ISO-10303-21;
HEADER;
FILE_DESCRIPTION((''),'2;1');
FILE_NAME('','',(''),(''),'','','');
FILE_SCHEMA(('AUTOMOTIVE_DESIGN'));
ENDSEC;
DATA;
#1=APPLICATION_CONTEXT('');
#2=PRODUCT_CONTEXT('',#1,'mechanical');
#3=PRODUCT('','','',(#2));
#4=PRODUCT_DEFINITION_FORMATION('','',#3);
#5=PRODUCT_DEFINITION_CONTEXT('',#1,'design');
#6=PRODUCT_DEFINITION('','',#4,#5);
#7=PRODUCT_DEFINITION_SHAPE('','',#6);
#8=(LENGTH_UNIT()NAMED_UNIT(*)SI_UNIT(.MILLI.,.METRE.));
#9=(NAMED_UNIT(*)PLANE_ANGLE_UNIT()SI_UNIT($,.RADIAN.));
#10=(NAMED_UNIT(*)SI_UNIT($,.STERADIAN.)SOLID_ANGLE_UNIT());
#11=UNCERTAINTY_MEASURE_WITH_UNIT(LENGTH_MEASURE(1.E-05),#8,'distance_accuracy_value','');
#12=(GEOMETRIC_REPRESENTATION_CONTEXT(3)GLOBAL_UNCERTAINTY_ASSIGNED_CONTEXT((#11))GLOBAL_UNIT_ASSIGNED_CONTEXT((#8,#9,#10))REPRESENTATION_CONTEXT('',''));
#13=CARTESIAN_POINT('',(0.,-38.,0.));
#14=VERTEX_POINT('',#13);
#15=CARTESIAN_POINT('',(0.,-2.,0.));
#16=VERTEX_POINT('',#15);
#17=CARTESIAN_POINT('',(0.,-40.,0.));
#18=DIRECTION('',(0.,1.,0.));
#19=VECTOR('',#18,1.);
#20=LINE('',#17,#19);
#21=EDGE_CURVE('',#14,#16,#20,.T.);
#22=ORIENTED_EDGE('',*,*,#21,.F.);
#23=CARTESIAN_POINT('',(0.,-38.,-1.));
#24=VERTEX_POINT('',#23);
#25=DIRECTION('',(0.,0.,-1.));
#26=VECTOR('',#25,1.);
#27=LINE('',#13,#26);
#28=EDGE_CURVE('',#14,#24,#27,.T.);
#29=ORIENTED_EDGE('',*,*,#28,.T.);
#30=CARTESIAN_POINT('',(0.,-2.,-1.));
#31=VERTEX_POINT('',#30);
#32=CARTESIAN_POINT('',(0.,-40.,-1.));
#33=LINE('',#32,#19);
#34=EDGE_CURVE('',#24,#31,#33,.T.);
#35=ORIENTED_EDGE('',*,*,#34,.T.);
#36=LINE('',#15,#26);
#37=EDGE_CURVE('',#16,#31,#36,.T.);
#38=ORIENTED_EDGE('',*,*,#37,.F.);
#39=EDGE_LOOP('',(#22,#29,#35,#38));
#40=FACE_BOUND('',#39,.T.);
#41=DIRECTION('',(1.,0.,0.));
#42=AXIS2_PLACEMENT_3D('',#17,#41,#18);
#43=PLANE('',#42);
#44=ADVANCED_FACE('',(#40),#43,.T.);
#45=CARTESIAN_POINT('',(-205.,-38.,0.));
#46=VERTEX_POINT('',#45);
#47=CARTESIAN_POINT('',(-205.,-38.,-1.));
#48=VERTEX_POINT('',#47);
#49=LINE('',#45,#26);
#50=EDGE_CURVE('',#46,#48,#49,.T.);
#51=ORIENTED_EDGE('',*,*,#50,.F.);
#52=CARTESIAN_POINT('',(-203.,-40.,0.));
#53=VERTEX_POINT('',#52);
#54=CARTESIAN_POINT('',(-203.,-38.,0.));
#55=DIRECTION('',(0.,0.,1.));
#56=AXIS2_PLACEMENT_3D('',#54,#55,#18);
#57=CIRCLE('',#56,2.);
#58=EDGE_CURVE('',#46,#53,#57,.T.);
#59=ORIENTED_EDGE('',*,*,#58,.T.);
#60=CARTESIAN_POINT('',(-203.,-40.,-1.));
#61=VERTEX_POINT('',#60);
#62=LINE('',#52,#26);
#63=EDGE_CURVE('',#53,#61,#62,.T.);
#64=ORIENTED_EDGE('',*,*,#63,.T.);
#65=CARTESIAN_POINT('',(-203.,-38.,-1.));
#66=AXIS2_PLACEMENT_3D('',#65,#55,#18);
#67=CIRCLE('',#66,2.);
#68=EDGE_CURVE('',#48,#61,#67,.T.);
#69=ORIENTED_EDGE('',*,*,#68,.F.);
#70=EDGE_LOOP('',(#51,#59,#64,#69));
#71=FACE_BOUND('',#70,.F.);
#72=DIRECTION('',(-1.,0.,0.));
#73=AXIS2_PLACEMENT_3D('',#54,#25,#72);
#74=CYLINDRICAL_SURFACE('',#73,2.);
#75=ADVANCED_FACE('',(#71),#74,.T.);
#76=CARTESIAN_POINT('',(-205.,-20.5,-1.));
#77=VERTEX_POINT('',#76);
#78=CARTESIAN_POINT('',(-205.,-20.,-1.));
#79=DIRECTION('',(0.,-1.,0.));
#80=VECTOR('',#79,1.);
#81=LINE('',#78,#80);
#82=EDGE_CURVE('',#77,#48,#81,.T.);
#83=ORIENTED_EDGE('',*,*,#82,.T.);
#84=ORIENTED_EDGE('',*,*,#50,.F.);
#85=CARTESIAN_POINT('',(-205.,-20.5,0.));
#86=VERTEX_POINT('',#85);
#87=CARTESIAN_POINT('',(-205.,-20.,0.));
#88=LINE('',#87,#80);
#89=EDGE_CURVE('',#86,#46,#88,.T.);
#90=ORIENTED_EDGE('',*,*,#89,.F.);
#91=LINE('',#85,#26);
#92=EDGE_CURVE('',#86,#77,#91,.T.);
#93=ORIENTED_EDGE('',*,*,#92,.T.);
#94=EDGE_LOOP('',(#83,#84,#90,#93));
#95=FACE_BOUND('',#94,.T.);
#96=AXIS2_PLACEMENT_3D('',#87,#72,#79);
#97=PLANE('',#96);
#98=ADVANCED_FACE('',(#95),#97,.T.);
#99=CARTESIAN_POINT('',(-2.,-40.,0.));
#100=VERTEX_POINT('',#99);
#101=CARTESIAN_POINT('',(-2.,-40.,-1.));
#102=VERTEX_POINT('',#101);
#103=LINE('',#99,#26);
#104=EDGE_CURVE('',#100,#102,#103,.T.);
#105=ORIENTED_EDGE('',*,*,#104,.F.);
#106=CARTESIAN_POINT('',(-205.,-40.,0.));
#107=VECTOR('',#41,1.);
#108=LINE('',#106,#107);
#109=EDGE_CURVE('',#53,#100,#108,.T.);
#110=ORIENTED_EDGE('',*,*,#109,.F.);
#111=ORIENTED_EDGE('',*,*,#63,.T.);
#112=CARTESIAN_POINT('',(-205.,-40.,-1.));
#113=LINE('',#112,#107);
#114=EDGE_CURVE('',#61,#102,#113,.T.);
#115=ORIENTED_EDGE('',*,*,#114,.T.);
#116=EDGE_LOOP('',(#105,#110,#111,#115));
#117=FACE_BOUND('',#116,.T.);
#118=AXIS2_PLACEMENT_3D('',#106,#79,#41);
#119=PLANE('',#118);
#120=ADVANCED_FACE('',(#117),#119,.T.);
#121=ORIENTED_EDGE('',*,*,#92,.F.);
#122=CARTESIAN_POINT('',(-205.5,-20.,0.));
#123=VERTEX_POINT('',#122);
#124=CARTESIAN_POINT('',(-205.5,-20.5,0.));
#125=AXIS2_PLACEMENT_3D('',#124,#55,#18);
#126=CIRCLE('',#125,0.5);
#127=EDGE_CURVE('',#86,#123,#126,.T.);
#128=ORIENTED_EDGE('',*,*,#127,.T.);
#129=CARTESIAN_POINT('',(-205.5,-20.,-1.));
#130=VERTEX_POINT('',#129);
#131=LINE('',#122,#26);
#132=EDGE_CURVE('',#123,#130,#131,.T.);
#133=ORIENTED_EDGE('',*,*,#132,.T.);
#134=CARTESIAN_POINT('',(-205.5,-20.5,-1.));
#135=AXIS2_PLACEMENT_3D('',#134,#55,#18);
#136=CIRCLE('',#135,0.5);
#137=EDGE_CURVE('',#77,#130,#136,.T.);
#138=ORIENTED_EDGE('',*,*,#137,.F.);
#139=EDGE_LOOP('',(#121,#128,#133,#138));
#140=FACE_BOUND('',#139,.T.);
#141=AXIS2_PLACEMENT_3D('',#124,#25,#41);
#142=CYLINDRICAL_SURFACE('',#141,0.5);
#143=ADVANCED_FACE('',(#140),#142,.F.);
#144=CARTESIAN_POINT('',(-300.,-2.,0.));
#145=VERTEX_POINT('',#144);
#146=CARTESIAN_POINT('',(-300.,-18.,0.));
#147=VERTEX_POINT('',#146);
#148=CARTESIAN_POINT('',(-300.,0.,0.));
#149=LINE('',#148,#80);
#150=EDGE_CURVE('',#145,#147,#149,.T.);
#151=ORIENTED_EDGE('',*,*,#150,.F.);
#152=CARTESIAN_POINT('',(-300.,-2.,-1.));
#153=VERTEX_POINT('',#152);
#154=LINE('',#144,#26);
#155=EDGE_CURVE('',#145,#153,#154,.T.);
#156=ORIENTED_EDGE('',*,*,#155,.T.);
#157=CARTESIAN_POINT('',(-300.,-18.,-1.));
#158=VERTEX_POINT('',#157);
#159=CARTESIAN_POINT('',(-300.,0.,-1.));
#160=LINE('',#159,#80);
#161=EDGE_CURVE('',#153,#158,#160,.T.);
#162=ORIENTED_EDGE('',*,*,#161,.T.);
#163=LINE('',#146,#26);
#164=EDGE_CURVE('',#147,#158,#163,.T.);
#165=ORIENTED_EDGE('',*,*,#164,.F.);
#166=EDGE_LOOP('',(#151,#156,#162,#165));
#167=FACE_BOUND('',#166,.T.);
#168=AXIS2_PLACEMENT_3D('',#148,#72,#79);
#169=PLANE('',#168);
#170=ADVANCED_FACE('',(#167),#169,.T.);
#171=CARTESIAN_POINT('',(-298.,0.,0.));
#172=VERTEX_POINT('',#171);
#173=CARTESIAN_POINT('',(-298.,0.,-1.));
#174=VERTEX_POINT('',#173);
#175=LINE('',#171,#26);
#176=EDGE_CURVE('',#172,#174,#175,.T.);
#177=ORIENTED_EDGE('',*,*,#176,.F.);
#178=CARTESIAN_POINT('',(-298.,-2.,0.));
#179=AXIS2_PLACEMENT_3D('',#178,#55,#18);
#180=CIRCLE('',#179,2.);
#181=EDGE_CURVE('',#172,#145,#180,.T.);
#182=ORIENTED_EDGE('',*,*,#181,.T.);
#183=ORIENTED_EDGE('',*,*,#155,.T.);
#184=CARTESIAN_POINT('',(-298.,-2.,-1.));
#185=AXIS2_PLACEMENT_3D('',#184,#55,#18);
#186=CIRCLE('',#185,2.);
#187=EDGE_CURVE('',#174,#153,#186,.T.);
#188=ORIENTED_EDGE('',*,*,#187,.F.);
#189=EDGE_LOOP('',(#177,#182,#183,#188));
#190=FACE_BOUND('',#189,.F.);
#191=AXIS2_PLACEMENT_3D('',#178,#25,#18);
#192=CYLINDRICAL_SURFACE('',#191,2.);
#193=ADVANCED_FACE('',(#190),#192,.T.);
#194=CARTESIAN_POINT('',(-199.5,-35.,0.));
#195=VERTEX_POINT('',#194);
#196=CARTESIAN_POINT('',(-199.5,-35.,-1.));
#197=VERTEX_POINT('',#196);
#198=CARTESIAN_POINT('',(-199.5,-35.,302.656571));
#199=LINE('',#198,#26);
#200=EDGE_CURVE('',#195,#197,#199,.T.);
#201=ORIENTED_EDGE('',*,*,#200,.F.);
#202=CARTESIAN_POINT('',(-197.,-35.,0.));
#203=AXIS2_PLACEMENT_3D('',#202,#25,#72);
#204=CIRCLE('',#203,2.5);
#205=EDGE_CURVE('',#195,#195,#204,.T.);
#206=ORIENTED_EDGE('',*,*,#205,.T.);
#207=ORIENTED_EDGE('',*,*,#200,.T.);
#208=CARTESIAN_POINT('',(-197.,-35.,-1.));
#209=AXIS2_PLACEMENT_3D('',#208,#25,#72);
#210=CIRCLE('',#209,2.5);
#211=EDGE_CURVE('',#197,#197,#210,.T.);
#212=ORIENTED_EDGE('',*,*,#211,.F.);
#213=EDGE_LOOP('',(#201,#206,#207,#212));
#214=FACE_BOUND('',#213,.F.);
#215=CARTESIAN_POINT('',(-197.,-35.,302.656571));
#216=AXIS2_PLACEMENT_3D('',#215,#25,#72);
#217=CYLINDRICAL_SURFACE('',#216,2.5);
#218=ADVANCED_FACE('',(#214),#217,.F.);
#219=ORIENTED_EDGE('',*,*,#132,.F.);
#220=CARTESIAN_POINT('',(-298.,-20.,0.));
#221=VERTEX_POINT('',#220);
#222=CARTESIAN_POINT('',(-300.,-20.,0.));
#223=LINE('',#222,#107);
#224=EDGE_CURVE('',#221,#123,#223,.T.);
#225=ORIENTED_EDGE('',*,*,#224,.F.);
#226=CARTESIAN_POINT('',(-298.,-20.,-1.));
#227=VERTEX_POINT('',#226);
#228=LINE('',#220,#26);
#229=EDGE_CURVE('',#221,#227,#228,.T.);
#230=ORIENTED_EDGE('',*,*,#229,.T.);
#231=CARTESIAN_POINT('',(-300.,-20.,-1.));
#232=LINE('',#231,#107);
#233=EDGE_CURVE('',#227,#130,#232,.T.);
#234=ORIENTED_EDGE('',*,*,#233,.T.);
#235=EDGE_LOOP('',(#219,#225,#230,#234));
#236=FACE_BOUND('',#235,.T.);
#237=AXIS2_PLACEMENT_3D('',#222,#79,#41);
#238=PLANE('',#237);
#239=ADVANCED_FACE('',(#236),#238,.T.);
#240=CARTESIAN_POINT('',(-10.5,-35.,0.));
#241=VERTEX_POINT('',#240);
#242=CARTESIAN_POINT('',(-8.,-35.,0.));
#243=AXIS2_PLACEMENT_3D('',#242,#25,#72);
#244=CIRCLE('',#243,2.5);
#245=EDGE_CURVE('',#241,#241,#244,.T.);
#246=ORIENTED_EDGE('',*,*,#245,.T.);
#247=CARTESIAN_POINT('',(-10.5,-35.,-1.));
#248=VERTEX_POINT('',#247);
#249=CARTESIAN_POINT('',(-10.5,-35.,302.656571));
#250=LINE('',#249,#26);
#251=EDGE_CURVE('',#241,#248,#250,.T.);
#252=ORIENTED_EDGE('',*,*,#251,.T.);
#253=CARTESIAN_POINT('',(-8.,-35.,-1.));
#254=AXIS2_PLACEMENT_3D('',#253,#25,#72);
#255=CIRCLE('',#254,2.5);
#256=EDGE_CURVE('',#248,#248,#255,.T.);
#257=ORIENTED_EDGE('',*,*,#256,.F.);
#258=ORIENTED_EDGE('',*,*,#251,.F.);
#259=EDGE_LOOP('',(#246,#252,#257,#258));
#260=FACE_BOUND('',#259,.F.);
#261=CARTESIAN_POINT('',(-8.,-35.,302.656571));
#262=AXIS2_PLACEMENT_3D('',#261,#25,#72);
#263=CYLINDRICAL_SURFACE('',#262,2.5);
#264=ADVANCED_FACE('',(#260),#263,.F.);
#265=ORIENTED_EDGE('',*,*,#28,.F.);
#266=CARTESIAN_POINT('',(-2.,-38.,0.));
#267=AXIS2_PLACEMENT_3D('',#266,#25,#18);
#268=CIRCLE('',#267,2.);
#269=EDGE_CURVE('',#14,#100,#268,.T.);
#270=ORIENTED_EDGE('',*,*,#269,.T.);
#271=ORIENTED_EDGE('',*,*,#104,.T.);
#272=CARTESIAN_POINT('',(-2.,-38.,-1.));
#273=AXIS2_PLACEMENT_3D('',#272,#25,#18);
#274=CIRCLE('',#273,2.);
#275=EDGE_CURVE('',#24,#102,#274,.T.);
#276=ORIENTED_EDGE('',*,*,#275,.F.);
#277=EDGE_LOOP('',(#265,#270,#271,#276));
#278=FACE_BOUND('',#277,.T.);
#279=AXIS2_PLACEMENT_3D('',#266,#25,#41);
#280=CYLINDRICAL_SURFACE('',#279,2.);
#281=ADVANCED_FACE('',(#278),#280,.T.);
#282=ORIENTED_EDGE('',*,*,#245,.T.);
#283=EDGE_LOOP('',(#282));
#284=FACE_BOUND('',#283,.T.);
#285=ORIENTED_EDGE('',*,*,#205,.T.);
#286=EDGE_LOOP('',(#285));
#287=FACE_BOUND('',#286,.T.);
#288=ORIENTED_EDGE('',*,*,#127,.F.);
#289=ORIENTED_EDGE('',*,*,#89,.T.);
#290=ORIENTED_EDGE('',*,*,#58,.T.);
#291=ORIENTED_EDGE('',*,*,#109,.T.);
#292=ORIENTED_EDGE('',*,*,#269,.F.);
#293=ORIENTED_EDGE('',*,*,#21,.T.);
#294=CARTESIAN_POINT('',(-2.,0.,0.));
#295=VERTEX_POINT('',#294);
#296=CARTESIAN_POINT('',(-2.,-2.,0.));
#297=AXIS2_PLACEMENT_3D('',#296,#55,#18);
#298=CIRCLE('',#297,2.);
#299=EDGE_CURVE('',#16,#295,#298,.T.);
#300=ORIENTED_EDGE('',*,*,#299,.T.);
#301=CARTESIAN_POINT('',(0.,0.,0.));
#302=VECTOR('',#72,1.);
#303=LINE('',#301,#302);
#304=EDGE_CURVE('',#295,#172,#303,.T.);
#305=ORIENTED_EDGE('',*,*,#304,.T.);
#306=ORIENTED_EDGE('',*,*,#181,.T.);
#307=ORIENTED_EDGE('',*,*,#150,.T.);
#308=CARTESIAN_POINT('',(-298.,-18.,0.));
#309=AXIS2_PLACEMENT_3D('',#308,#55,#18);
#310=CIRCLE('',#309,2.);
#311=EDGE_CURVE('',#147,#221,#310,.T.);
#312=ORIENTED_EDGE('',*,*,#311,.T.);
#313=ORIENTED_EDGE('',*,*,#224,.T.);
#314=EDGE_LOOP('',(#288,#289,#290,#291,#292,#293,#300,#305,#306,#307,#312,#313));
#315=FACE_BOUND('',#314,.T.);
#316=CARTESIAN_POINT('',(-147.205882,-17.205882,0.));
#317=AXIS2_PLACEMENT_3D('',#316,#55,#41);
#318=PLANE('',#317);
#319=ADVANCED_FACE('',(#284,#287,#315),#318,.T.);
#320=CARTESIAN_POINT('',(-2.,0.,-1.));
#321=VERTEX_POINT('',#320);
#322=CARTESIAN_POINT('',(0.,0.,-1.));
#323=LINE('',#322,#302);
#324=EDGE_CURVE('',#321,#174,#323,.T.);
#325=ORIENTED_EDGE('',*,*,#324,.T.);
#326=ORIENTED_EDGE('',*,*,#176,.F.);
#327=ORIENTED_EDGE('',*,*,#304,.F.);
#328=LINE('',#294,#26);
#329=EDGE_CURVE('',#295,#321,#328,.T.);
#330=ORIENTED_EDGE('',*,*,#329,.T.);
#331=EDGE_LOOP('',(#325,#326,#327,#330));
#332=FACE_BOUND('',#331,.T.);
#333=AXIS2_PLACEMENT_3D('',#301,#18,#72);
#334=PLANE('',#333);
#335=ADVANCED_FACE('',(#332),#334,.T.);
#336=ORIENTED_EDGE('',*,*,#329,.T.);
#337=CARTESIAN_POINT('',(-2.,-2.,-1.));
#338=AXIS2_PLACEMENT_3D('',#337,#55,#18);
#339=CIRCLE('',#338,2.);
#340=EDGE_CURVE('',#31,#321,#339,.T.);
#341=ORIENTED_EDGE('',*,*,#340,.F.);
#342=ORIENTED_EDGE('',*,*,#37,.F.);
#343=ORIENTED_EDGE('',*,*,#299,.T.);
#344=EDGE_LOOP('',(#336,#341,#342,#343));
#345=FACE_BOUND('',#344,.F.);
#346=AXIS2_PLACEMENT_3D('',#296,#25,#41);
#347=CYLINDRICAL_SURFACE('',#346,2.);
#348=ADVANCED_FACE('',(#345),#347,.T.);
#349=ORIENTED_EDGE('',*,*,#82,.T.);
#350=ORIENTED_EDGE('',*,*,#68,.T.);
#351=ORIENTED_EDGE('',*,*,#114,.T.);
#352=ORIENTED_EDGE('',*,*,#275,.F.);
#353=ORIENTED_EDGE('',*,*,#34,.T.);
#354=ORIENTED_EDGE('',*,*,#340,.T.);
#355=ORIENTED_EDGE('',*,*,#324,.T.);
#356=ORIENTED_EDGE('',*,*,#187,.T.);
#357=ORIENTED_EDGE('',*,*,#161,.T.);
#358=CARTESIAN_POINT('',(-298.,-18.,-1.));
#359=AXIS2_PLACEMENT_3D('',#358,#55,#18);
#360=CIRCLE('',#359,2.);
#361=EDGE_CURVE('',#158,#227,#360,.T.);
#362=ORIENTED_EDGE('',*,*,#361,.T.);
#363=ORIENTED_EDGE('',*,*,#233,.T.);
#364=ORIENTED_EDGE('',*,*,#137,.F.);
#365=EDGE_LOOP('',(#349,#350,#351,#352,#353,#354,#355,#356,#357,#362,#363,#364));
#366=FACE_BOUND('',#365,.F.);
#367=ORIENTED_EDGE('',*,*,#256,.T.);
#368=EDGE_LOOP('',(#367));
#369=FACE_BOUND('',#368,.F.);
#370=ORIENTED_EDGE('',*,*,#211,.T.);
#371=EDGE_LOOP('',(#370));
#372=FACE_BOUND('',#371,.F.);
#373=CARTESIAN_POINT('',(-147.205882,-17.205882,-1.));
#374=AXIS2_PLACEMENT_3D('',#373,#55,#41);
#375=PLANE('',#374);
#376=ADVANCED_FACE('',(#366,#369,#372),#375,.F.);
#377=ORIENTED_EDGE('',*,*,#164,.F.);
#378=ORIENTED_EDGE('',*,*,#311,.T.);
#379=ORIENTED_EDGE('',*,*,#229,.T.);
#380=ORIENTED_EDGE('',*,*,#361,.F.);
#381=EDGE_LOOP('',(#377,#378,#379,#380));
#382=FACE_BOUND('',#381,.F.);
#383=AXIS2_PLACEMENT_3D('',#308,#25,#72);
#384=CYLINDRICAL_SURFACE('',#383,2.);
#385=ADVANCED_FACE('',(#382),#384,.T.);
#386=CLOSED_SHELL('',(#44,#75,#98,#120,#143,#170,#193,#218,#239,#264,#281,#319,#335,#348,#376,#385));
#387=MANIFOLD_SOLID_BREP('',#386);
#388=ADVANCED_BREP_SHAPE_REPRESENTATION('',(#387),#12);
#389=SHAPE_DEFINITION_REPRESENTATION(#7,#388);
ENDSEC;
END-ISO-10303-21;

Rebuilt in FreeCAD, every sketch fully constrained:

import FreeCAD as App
import Part
import Sketcher
from FreeCAD import Vector


def edges_at(feature, points):
    """Names of the edges that pass closest to the given points."""
    edges = feature.Shape.Edges
    near = lambda p: min(range(len(edges)), key=lambda i: edges[i].distToShape(Part.Vertex(*p))[0])
    return sorted({f"Edge{near(p) + 1}" for p in points})

doc = App.newDocument("Part")
body = doc.addObject("PartDesign::Body", "Body")

# Sketch on XY plane
sketch1 = doc.addObject("Sketcher::SketchObject", "Sketch")
body.addObject(sketch1)
sketch1.AttachmentSupport = (doc.XY_Plane, [""])
sketch1.MapMode = "FlatFace"
sketch1.addGeometry([
    Part.LineSegment(Vector(0, -40, 0), Vector(0, 0, 0)),  # 0
    Part.LineSegment(Vector(0, 0, 0), Vector(-300, 0, 0)),  # 1
    Part.LineSegment(Vector(-300, 0, 0), Vector(-300, -20, 0)),  # 2
    Part.LineSegment(Vector(-300, -20, 0), Vector(-205, -20, 0)),  # 3
    Part.LineSegment(Vector(-205, -20, 0), Vector(-205, -40, 0)),  # 4
    Part.LineSegment(Vector(-205, -40, 0), Vector(0, -40, 0)),  # 5
], False)
sketch1.addConstraint([
    Sketcher.Constraint("Coincident", 0, 2, 1, 1),
    Sketcher.Constraint("Coincident", 1, 2, 2, 1),
    Sketcher.Constraint("Coincident", 2, 2, 3, 1),
    Sketcher.Constraint("Coincident", 3, 2, 4, 1),
    Sketcher.Constraint("Coincident", 4, 2, 5, 1),
    Sketcher.Constraint("Coincident", 5, 2, 0, 1),
    Sketcher.Constraint("Vertical", 0),
    Sketcher.Constraint("Horizontal", 1),
    Sketcher.Constraint("Vertical", 2),
    Sketcher.Constraint("Horizontal", 3),
    Sketcher.Constraint("Vertical", 4),
    Sketcher.Constraint("Horizontal", 5),
    Sketcher.Constraint("Coincident", 0, 2, -1, 1),
    Sketcher.Constraint("Equal", 2, 4),
    Sketcher.Constraint("DistanceX", 1, 2, 1, 1, 300.0),
    Sketcher.Constraint("DistanceX", 3, 1, 3, 2, 95.0),
    Sketcher.Constraint("DistanceY", 0, 1, 0, 2, 40.0),
])
pad1 = doc.addObject("PartDesign::Pad", "Pad")
body.addObject(pad1)
pad1.Profile = sketch1
pad1.Length = 1
pad1.Reversed = True
doc.recompute()

fillet = doc.addObject("PartDesign::Fillet", "Fillet")
body.addObject(fillet)
fillet.Base = (pad1, edges_at(pad1, [
    (-300, -20, -0.5),
    (-300, 0, -0.5),
    (-205, -40, -0.5),
    (0, 0, -0.5),
    (0, -40, -0.5),
]))
fillet.Radius = 2
doc.recompute()

fillet2 = doc.addObject("PartDesign::Fillet", "Fillet001")
body.addObject(fillet2)
fillet2.Base = (fillet, edges_at(fillet, [(-205, -20, -0.5)]))
fillet2.Radius = 0.5

# Sketch on XY plane
sketch2 = doc.addObject("Sketcher::SketchObject", "Sketch001")
body.addObject(sketch2)
sketch2.AttachmentSupport = (doc.XY_Plane, [""])
sketch2.MapMode = "FlatFace"
sketch2.addGeometry([
    Part.Circle(Vector(-197, -35, 0), Vector(0, 0, 1), 2.5),
    Part.Circle(Vector(-8, -35, 0), Vector(0, 0, 1), 2.5),
], False)
sketch2.addConstraint([
    Sketcher.Constraint("Equal", 0, 1),
    Sketcher.Constraint("Horizontal", 0, 3, 1, 3),
    Sketcher.Constraint("Diameter", 0, 5.0),
    Sketcher.Constraint("DistanceX", 0, 3, -1, 1, 197.0),
    Sketcher.Constraint("DistanceY", 0, 3, -1, 1, 35.0),
    Sketcher.Constraint("DistanceX", 1, 3, -1, 1, 8.0),
])
doc.recompute()
hole = doc.addObject("PartDesign::Hole", "Hole")
body.addObject(hole)
hole.Profile = sketch2
hole.ThreadType = "None"
hole.Diameter = 5
hole.DepthType = "ThroughAll"

doc.recompute()
